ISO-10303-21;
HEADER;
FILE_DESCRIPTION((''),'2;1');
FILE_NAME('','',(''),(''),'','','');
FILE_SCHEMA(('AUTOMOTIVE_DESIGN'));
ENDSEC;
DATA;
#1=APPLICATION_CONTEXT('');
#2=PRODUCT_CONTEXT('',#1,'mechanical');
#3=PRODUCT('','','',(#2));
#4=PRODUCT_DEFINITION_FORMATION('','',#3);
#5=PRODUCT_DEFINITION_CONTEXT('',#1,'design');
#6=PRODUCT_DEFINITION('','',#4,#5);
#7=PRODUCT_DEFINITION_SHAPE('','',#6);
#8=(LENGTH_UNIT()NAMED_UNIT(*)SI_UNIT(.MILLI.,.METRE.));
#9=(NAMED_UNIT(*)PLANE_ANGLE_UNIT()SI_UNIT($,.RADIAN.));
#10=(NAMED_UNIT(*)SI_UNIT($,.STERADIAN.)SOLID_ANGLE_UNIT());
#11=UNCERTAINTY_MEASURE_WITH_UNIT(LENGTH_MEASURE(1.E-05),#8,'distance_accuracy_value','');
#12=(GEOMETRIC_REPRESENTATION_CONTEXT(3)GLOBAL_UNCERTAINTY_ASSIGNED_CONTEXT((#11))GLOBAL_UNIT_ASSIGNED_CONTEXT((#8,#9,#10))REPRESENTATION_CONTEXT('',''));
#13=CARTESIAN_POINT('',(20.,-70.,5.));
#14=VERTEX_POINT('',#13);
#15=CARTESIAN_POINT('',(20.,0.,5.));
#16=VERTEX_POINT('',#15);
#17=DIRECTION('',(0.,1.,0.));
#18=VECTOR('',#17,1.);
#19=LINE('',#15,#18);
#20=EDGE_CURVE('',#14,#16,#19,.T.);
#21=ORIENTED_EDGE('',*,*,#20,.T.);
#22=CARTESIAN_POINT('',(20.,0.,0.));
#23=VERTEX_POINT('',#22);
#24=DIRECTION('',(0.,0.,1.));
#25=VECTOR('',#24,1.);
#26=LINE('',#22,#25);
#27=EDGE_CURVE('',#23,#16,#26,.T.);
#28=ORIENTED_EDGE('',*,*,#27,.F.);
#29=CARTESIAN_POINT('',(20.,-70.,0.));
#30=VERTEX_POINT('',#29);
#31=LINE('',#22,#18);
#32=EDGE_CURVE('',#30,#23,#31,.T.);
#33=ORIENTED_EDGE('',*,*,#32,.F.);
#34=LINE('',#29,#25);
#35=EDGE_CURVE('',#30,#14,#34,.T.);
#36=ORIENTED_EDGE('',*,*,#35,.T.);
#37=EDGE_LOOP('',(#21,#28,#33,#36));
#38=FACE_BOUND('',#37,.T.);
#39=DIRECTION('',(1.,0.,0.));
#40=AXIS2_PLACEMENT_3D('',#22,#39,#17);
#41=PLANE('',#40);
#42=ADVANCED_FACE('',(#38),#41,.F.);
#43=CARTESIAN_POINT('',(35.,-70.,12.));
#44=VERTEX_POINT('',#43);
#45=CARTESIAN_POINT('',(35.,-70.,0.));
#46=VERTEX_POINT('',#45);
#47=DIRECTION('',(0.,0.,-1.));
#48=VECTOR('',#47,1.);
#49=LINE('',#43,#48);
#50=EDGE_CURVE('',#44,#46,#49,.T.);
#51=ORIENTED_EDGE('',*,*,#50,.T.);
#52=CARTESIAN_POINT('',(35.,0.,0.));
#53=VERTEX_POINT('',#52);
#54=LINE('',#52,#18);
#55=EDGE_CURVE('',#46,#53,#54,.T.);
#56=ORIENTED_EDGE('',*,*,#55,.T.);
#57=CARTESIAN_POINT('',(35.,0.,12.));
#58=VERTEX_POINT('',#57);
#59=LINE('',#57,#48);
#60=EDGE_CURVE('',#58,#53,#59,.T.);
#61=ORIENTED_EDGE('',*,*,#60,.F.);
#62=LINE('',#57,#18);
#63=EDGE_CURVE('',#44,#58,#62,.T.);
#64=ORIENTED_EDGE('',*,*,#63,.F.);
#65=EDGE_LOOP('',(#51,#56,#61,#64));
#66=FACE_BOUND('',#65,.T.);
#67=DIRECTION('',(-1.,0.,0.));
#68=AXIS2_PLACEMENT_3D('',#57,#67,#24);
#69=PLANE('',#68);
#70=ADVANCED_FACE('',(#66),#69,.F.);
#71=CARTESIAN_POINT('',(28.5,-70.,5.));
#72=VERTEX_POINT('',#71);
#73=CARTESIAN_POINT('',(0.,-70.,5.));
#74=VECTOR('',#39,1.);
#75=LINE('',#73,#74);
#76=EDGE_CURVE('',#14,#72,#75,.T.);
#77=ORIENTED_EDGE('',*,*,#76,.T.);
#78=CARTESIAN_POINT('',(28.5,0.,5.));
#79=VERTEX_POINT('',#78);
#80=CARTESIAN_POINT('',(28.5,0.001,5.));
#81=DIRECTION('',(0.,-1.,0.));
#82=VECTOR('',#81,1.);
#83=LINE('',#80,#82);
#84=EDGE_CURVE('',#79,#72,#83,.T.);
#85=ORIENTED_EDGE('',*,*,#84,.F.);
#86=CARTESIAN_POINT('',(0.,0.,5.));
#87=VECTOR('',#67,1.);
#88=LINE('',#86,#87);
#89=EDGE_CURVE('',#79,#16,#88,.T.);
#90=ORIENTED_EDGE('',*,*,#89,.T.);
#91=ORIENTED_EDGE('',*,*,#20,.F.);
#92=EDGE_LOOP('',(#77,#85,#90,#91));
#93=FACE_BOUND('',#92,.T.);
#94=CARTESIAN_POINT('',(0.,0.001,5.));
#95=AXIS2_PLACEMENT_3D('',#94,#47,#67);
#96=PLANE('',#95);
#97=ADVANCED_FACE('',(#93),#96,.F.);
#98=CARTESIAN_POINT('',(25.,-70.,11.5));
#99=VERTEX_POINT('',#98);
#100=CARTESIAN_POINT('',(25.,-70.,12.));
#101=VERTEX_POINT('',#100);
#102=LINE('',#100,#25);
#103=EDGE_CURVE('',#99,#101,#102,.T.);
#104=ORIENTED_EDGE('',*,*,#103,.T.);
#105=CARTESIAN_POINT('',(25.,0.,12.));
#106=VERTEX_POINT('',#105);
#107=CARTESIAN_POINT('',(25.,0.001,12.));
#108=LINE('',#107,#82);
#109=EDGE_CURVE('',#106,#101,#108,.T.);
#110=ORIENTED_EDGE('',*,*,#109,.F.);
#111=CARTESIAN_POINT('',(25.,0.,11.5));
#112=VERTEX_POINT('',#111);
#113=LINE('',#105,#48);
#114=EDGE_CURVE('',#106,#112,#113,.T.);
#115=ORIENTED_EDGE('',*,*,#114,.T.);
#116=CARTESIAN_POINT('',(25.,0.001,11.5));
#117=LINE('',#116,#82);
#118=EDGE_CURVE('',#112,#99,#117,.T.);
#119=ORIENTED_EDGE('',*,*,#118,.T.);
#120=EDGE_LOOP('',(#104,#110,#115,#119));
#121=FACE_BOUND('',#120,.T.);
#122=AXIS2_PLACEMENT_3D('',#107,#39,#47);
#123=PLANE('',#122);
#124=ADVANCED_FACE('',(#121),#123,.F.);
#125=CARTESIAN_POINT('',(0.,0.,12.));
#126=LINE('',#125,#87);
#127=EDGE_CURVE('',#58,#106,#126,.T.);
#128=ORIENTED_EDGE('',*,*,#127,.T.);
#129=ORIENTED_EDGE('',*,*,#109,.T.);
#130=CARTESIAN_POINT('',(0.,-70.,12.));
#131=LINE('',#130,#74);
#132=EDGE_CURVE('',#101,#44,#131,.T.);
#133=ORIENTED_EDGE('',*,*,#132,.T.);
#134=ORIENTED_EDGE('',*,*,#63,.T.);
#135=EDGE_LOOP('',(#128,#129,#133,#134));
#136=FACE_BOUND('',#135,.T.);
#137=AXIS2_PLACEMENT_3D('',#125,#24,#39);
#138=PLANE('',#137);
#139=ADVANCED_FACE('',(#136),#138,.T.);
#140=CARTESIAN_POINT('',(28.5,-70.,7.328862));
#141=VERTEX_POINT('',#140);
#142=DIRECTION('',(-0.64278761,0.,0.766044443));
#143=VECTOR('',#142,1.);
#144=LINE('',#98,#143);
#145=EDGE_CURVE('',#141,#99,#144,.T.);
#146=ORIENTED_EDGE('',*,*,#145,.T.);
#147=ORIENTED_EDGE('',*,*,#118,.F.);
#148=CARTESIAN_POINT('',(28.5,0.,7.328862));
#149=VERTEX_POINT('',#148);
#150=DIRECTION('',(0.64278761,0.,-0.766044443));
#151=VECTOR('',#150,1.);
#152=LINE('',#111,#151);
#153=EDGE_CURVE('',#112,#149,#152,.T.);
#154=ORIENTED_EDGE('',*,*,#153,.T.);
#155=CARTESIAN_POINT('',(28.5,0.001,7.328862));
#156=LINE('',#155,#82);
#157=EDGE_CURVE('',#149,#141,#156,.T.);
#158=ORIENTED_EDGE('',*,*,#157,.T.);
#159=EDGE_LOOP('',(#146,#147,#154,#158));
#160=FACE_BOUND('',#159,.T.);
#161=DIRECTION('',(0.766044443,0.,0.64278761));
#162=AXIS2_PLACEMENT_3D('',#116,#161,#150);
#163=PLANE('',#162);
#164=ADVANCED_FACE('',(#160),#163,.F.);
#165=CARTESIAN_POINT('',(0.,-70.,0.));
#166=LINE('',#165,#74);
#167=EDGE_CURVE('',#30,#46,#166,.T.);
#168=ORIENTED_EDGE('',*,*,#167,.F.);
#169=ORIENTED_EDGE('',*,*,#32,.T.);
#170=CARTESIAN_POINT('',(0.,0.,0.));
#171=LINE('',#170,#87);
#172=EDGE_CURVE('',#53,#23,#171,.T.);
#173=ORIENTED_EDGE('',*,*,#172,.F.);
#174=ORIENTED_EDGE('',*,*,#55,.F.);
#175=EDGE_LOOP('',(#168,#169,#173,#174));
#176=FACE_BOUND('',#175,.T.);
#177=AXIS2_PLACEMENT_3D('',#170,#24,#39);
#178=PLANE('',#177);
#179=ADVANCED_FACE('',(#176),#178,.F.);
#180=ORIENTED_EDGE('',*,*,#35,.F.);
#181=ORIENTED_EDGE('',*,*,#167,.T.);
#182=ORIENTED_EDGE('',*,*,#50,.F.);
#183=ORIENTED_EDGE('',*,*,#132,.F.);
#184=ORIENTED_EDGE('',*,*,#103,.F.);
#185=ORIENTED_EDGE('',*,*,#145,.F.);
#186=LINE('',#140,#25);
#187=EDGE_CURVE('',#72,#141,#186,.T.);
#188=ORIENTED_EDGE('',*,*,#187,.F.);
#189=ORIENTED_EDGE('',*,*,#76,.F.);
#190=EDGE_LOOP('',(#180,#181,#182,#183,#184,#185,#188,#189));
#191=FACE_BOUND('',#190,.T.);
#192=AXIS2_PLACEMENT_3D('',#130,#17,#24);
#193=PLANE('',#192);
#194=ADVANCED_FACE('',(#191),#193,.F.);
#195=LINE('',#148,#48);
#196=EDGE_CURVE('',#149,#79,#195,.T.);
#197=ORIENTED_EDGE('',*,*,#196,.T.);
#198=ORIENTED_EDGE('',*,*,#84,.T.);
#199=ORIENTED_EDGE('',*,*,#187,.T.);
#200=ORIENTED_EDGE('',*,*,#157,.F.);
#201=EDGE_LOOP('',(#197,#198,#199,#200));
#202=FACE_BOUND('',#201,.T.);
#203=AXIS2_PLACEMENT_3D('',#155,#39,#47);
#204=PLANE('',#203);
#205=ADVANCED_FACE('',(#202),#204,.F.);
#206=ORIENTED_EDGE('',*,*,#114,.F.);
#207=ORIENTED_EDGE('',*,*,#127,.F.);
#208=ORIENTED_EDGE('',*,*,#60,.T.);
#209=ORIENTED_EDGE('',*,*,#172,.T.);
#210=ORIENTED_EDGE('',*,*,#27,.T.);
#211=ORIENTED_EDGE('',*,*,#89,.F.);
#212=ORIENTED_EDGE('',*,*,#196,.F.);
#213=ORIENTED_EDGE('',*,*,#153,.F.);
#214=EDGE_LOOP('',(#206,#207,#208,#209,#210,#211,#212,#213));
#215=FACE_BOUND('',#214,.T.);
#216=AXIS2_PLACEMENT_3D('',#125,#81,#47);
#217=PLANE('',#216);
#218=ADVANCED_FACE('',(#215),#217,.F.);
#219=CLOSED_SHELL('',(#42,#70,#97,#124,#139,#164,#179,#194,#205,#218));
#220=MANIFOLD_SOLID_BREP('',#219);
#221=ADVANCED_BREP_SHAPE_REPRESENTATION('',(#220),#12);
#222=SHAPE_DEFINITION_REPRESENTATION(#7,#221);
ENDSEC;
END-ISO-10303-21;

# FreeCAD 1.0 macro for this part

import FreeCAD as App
import Part
import Sketcher
from FreeCAD import Vector
Q = App.Units.Quantity


def add_polygon(sketch, points):
    """Adds a closed chain of lines whose ends are joined by coincident constraints."""
    first, n = sketch.GeometryCount, len(points)
    for a, b in zip(points, points[1:] + points[:1]):
        sketch.addGeometry(Part.LineSegment(App.Vector(*a, 0), App.Vector(*b, 0)), False)
    for i in range(n):
        sketch.addConstraint(Sketcher.Constraint("Coincident", first + i, 2, first + (i + 1) % n, 1))

doc = App.newDocument("Part")
body = doc.addObject("PartDesign::Body", "Body")

# Sketch on XY plane
sketch1 = body.newObject("Sketcher::SketchObject", "Sketch")
sketch1.AttachmentSupport = (doc.getObject("XY_Plane"), [""])
sketch1.MapMode = "FlatFace"
add_polygon(sketch1, [(0, 0), (0, -70), (35, -70), (35, 0)])  # lines 0-3
sketch1.addConstraint(Sketcher.Constraint("Vertical", 0))
sketch1.addConstraint(Sketcher.Constraint("Horizontal", 1))
sketch1.addConstraint(Sketcher.Constraint("Vertical", 2))
sketch1.addConstraint(Sketcher.Constraint("Horizontal", 3))
sketch1.addConstraint(Sketcher.Constraint("Coincident", 3, 2, -1, 1))
sketch1.addConstraint(Sketcher.Constraint("DistanceX", 1, 1, 1, 2, 35.0))
sketch1.addConstraint(Sketcher.Constraint("DistanceY", 0, 2, 0, 1, 70.0))
pad1 = body.newObject("PartDesign::Pad", "Pad")
pad1.Profile = sketch1
pad1.Length = 12

# Sketch on XZ plane
sketch2 = body.newObject("Sketcher::SketchObject", "Sketch001")
sketch2.AttachmentSupport = (doc.getObject("XZ_Plane"), [""])
sketch2.MapMode = "FlatFace"
sketch2.AttachmentOffset = App.Placement(Vector(0, 0, 70), App.Rotation())
add_polygon(sketch2, [(28.5, 5), (28.5, 7.328862), (25, 11.5), (25, 12), (0, 12), (0, 5)])  # lines 0-5
sketch2.addConstraint(Sketcher.Constraint("Vertical", 0))
sketch2.addConstraint(Sketcher.Constraint("Vertical", 2))
sketch2.addConstraint(Sketcher.Constraint("Horizontal", 3))
sketch2.addConstraint(Sketcher.Constraint("Vertical", 4))
sketch2.addConstraint(Sketcher.Constraint("Horizontal", 5))
sketch2.addConstraint(Sketcher.Constraint("PointOnObject", 3, 2, -2))
sketch2.addConstraint(Sketcher.Constraint("DistanceX", 3, 2, 3, 1, 25.0))
sketch2.addConstraint(Sketcher.Constraint("DistanceY", 4, 2, 4, 1, 7.0))
sketch2.addConstraint(Sketcher.Constraint("Angle", 1, Q("130 deg")))
sketch2.addConstraint(Sketcher.Constraint("DistanceX", 5, 1, 5, 2, 28.5))
sketch2.addConstraint(Sketcher.Constraint("DistanceY", 2, 1, 2, 2, 0.5))
sketch2.addConstraint(Sketcher.Constraint("DistanceY", -1, 1, 2, 2, 12.0))
pocket1 = body.newObject("PartDesign::Pocket", "Pocket")
pocket1.Profile = sketch2
pocket1.Type = "UpToFirst"

# Sketch on XY plane
sketch3 = body.newObject("Sketcher::SketchObject", "Sketch002")
sketch3.AttachmentSupport = (doc.getObject("XY_Plane"), [""])
sketch3.MapMode = "FlatFace"
sketch3.AttachmentOffset = App.Placement(Vector(0, 0, 5), App.Rotation())
add_polygon(sketch3, [(0, 0), (0, -70), (20, -70), (20, 0)])  # lines 0-3
sketch3.addConstraint(Sketcher.Constraint("Vertical", 0))
sketch3.addConstraint(Sketcher.Constraint("Horizontal", 1))
sketch3.addConstraint(Sketcher.Constraint("Vertical", 2))
sketch3.addConstraint(Sketcher.Constraint("Horizontal", 3))
sketch3.addConstraint(Sketcher.Constraint("Coincident", 3, 2, -1, 1))
sketch3.addConstraint(Sketcher.Constraint("DistanceX", 1, 1, 1, 2, 20.0))
sketch3.addConstraint(Sketcher.Constraint("DistanceY", 0, 2, 0, 1, 70.0))
pocket2 = body.newObject("PartDesign::Pocket", "Pocket001")
pocket2.Profile = sketch3
pocket2.Type = "ThroughAll"

doc.recompute()
